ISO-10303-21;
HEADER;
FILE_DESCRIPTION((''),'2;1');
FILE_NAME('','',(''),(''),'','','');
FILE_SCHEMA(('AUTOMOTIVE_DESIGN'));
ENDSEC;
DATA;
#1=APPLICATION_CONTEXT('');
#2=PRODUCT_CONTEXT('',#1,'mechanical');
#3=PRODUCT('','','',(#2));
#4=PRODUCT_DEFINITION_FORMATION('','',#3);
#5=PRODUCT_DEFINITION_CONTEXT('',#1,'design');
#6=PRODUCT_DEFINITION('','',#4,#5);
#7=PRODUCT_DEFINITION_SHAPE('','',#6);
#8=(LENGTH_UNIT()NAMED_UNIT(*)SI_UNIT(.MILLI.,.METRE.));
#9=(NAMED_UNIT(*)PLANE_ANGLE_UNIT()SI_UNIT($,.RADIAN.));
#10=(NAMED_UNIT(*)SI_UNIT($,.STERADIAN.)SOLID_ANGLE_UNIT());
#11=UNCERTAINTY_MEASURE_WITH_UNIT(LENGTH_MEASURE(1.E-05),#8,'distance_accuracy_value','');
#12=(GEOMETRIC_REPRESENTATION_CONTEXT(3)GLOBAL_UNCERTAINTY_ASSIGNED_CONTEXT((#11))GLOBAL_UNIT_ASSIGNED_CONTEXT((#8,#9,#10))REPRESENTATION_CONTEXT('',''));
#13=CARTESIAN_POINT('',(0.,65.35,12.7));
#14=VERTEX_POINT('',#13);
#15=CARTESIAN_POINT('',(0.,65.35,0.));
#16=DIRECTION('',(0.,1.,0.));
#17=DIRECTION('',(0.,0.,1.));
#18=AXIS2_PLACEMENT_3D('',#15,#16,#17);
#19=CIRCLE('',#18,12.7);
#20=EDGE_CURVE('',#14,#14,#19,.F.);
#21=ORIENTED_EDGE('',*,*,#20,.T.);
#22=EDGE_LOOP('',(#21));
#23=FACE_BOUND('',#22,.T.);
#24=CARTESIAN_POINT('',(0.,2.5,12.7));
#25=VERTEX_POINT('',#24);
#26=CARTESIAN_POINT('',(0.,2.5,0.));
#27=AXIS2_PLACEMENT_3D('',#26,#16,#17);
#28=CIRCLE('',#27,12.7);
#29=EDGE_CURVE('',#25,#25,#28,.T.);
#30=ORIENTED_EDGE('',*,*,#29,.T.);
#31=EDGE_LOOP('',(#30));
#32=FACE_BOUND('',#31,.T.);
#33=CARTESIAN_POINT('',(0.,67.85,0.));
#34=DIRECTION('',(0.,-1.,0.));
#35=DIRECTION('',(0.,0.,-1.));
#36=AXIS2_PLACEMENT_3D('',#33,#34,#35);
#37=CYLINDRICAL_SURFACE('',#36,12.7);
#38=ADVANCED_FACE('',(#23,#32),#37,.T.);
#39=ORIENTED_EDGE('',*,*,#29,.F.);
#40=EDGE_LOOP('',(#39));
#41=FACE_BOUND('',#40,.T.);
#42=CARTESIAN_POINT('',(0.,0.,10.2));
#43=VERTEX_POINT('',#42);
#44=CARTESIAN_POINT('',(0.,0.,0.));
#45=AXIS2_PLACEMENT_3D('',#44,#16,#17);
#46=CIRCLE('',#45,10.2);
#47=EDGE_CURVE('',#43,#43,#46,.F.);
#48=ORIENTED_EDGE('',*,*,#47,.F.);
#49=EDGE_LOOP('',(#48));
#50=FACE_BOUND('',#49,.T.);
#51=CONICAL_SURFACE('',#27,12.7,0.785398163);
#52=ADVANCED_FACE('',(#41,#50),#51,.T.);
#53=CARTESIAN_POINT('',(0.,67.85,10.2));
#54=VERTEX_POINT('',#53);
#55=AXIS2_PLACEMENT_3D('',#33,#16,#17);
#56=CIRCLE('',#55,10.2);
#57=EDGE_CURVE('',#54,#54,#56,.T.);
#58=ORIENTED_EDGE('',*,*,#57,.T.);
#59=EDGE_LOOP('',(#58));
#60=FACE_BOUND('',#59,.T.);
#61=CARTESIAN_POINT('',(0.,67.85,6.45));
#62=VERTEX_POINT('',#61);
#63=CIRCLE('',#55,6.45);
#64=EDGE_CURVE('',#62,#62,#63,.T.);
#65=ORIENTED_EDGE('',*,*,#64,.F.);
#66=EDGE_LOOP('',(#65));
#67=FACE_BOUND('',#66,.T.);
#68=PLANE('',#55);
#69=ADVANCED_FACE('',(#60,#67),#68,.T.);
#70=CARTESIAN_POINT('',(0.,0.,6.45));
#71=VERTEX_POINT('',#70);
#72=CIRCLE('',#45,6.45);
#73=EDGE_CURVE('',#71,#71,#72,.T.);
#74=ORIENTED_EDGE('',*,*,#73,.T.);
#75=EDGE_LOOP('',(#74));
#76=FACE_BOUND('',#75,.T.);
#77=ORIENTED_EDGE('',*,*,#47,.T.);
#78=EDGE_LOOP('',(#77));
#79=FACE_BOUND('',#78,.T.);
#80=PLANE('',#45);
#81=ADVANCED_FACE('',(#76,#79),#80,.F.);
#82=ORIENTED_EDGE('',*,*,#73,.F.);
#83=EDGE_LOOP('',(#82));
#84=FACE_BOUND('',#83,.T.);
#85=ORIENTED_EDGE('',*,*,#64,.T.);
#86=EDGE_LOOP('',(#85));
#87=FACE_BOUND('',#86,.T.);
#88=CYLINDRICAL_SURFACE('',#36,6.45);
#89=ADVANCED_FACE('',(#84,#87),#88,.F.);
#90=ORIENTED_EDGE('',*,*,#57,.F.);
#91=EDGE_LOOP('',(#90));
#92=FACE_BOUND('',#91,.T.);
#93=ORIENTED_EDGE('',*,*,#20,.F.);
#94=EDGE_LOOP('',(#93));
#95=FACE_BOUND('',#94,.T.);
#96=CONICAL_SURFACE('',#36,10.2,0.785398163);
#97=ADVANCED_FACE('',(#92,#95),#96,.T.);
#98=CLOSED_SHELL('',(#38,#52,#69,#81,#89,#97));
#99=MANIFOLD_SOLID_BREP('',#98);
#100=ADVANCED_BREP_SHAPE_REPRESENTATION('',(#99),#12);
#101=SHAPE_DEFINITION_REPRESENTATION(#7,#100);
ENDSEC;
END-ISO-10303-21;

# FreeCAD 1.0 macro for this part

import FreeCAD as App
import Part
import Sketcher
Q = App.Units.Quantity


def edges_at(feature, points):
    """Names of the edges that pass closest to the given points."""
    edges = feature.Shape.Edges
    near = lambda p: min(range(len(edges)), key=lambda i: edges[i].distToShape(Part.Vertex(*p))[0])
    return sorted({f"Edge{near(p) + 1}" for p in points})

doc = App.newDocument("Part")
params = doc.addObject("Spreadsheet::Sheet", "Params")
for row, (alias, value) in enumerate([
    ("sketch1_diameter", "25.4 mm"),
    ("sketch1_diameter2", "12.9 mm"),
    ("pad1_length", "67.85 mm"),
    ("chamfer_size", "2.5 mm"),
], start=1):
    params.set(f"A{row}", alias)
    params.set(f"B{row}", "=" + value)
    params.setAlias(f"B{row}", alias)

body = doc.addObject("PartDesign::Body", "Body")

# Sketch on XZ plane
sketch1 = body.newObject("Sketcher::SketchObject", "Sketch")
sketch1.AttachmentSupport = (doc.getObject("XZ_Plane"), [""])
sketch1.MapMode = "FlatFace"
sketch1.addGeometry([
    Part.Circle(App.Vector(0, 0, 0), App.Vector(0, 0, 1), 13),
    Part.Circle(App.Vector(0, 0, 0), App.Vector(0, 0, 1), 6),
], False)
sketch1.addConstraint([
    Sketcher.Constraint("Coincident", 0, 3, -1, 1),
    Sketcher.Constraint("Coincident", 1, 3, -1, 1),
    Sketcher.Constraint("Diameter", 0, Q("25.4 mm")),
    Sketcher.Constraint("Diameter", 1, Q("12.9 mm")),
])
sketch1.setExpression("Constraints[2]", "Params.sketch1_diameter")
sketch1.setExpression("Constraints[3]", "Params.sketch1_diameter2")
pad1 = body.newObject("PartDesign::Pad", "Pad")
pad1.Profile = sketch1
pad1.setExpression("Length", "Params.pad1_length")
pad1.Reversed = True
doc.recompute()

chamfer = body.newObject("PartDesign::Chamfer", "Chamfer")
chamfer.Base = (pad1, edges_at(pad1, [(0, 0, -12.7), (0, 67.85, -12.7)]))
chamfer.setExpression("Size", "Params.chamfer_size")

doc.recompute()
